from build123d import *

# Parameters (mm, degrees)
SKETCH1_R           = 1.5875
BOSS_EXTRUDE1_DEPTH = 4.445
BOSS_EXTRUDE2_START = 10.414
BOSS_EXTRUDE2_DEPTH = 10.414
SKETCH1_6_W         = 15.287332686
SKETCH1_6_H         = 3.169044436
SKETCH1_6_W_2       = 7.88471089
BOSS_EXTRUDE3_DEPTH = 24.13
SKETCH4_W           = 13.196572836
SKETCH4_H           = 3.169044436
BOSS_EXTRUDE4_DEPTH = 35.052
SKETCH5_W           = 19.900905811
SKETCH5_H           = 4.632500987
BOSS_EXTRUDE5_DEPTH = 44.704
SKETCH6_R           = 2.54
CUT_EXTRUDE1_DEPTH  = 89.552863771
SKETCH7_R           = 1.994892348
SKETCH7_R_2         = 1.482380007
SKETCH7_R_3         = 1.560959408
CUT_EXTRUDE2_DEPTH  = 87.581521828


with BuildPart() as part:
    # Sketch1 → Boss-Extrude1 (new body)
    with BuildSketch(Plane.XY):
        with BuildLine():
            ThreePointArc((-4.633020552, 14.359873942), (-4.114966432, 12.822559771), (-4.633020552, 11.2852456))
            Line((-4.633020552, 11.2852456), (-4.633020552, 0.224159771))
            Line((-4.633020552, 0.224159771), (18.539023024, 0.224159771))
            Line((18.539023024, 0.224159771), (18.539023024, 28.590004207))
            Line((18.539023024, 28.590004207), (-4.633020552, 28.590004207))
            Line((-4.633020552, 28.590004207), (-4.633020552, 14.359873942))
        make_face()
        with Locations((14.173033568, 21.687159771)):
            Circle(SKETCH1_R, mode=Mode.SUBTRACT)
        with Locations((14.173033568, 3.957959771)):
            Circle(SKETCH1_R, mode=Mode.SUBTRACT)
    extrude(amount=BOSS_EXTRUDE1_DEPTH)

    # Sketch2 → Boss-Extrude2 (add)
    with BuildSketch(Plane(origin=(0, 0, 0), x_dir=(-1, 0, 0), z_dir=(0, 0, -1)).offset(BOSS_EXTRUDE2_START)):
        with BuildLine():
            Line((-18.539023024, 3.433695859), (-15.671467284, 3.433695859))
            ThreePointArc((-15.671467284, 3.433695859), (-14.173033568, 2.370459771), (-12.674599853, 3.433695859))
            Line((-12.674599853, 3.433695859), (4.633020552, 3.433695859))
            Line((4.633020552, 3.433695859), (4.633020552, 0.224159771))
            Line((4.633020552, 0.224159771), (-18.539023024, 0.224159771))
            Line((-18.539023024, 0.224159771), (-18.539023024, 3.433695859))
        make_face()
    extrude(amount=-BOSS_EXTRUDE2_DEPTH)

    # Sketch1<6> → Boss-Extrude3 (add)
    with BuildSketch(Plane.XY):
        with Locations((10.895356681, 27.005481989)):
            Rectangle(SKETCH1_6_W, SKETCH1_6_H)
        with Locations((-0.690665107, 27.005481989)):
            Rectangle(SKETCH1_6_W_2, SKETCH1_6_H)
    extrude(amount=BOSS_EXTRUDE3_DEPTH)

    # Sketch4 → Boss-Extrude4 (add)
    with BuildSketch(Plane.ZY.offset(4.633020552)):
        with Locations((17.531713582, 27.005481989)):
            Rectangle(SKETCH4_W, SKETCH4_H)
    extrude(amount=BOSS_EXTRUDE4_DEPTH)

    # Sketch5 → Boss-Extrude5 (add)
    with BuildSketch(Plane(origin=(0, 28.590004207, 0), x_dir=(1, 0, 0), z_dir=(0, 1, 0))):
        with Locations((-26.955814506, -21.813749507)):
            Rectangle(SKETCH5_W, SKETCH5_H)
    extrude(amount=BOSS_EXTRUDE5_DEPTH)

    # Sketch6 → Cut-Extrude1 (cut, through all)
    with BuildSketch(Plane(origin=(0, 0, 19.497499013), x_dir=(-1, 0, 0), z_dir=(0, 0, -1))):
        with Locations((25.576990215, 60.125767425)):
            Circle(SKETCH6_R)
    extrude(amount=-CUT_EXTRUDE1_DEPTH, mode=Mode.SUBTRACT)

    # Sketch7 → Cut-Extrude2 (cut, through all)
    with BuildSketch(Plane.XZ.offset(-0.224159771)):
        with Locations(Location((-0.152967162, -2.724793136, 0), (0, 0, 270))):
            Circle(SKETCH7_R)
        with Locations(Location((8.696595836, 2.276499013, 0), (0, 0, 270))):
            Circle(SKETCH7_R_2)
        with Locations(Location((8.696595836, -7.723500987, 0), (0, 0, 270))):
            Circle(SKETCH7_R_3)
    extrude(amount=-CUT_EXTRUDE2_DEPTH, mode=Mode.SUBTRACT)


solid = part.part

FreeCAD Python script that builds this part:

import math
import FreeCAD as App
import Part
import Sketcher
Q = App.Units.Quantity

doc = App.newDocument("Part")
body = doc.addObject("PartDesign::Body", "Body")

# Sketch on XY plane
sketch1 = body.newObject("Sketcher::SketchObject", "Sketch")
sketch1.AttachmentSupport = (doc.getObject("XY_Plane"), [""])
sketch1.MapMode = "FlatFace"
sketch1.addGeometry(Part.ArcOfCircle(Part.Circle(App.Vector(-6.654966, 12.82256, 0), App.Vector(0, 0, 1), 2.54), math.radians(-37.246244), math.radians(37.246244)), False)
sketch1.addGeometry(Part.LineSegment(App.Vector(-4.633021, 11.285246, 0), App.Vector(-4.633021, 0.22416, 0)), False)
sketch1.addGeometry(Part.LineSegment(App.Vector(-4.633021, 0.22416, 0), App.Vector(18.539023, 0.22416, 0)), False)
sketch1.addGeometry(Part.LineSegment(App.Vector(18.539023, 0.22416, 0), App.Vector(18.539023, 28.590004, 0)), False)
sketch1.addGeometry(Part.LineSegment(App.Vector(18.539023, 28.590004, 0), App.Vector(-4.633021, 28.590004, 0)), False)
sketch1.addGeometry(Part.LineSegment(App.Vector(-4.633021, 28.590004, 0), App.Vector(-4.633021, 14.359874, 0)), False)
sketch1.addGeometry(Part.Circle(App.Vector(14.173034, 3.95796, 0), App.Vector(0, 0, 1), 1.5875), False)
sketch1.addGeometry(Part.Circle(App.Vector(14.173034, 21.68716, 0), App.Vector(0, 0, 1), 1.5875), False)
sketch1.addConstraint(Sketcher.Constraint("Coincident", 0, 1, 1, 1))
sketch1.addConstraint(Sketcher.Constraint("Coincident", 1, 2, 2, 1))
sketch1.addConstraint(Sketcher.Constraint("Coincident", 2, 2, 3, 1))
sketch1.addConstraint(Sketcher.Constraint("Coincident", 3, 2, 4, 1))
sketch1.addConstraint(Sketcher.Constraint("Coincident", 4, 2, 5, 1))
sketch1.addConstraint(Sketcher.Constraint("Coincident", 5, 2, 0, 2))
sketch1.addConstraint(Sketcher.Constraint("Vertical", 1))
sketch1.addConstraint(Sketcher.Constraint("Horizontal", 2))
sketch1.addConstraint(Sketcher.Constraint("Vertical", 3))
sketch1.addConstraint(Sketcher.Constraint("Horizontal", 4))
sketch1.addConstraint(Sketcher.Constraint("Vertical", 5))
sketch1.addConstraint(Sketcher.Constraint("Equal", 6, 7))
sketch1.addConstraint(Sketcher.Constraint("Vertical", 6, 3, 7, 3))
sketch1.addConstraint(Sketcher.Constraint("Vertical", 1, 2, 4, 2))
sketch1.addConstraint(Sketcher.Constraint("Radius", 0, Q("0.1 in")))
sketch1.addConstraint(Sketcher.Constraint("Diameter", 6, Q("0.125 in")))
sketch1.addConstraint(Sketcher.Constraint("DistanceX", 0, 3, 6, 3, Q("0.82 in")))
sketch1.addConstraint(Sketcher.Constraint("DistanceY", 6, 3, 0, 3, Q("0.349 in")))
sketch1.addConstraint(Sketcher.Constraint("DistanceY", 6, 3, 7, 3, Q("0.698 in")))
sketch1.addConstraint(Sketcher.Constraint("DistanceY", 1, 2, 0, 3, Q("0.496 in")))
sketch1.addConstraint(Sketcher.Constraint("DistanceY", 5, 2, 5, 1, 14.23013))
sketch1.addConstraint(Sketcher.Constraint("DistanceX", 2, 1, 2, 2, 23.172044))
sketch1.addConstraint(Sketcher.Constraint("DistanceY", 1, 2, 1, 1, 11.061086))
sketch1.addConstraint(Sketcher.Constraint("DistanceY", -1, 1, 0, 3, 12.82256))
sketch1.addConstraint(Sketcher.Constraint("DistanceX", 0, 1, -1, 1, 4.633021))
pad1 = body.newObject("PartDesign::Pad", "Pad")
pad1.Profile = sketch1
pad1.Length = Q("0.175 in")

# Sketch on XY plane
sketch2 = body.newObject("Sketcher::SketchObject", "Sketch001")
sketch2.AttachmentSupport = (doc.getObject("XY_Plane"), [""])
sketch2.MapMode = "FlatFace"
sketch2.AttachmentOffset = App.Placement(App.Vector(0, 0, -0.41 * 25.4), App.Rotation())
sketch2.addGeometry(Part.LineSegment(App.Vector(15.671467, 3.433696, 0), App.Vector(18.539023, 3.433696, 0)), False)
sketch2.addGeometry(Part.LineSegment(App.Vector(18.539023, 3.433696, 0), App.Vector(18.539023, 0.22416, 0)), False)
sketch2.addGeometry(Part.LineSegment(App.Vector(18.539023, 0.22416, 0), App.Vector(-4.633021, 0.22416, 0)), False)
sketch2.addGeometry(Part.LineSegment(App.Vector(-4.633021, 0.22416, 0), App.Vector(-4.633021, 3.433696, 0)), False)
sketch2.addGeometry(Part.LineSegment(App.Vector(-4.633021, 3.433696, 0), App.Vector(12.6746, 3.433696, 0)), False)
sketch2.addGeometry(Part.ArcOfCircle(Part.Circle(App.Vector(14.173034, 3.95796, 0), App.Vector(0, 0, 1), 1.5875), math.radians(-160.716354), math.radians(-19.283646)), False)
sketch2.addConstraint(Sketcher.Constraint("Coincident", 0, 2, 1, 1))
sketch2.addConstraint(Sketcher.Constraint("Coincident", 1, 2, 2, 1))
sketch2.addConstraint(Sketcher.Constraint("Coincident", 2, 2, 3, 1))
sketch2.addConstraint(Sketcher.Constraint("Coincident", 3, 2, 4, 1))
sketch2.addConstraint(Sketcher.Constraint("Coincident", 4, 2, 5, 1))
sketch2.addConstraint(Sketcher.Constraint("Coincident", 5, 2, 0, 1))
sketch2.addConstraint(Sketcher.Constraint("Horizontal", 0))
sketch2.addConstraint(Sketcher.Constraint("Vertical", 1))
sketch2.addConstraint(Sketcher.Constraint("Horizontal", 2))
sketch2.addConstraint(Sketcher.Constraint("Vertical", 3))
sketch2.addConstraint(Sketcher.Constraint("Horizontal", 4))
sketch2.addConstraint(Sketcher.Constraint("Horizontal", 0, 2, 3, 2))
sketch2.addConstraint(Sketcher.Constraint("Radius", 5, Q("0.0625 in")))
sketch2.addConstraint(Sketcher.Constraint("DistanceX", -1, 1, 4, 2, Q("0.499 in")))
sketch2.addConstraint(Sketcher.Constraint("DistanceY", 1, 2, 5, 3, Q("0.147 in")))
sketch2.addConstraint(Sketcher.Constraint("DistanceX", 4, 1, 4, 2, 17.30762))
sketch2.addConstraint(Sketcher.Constraint("DistanceX", 0, 1, 0, 2, 2.867556))
sketch2.addConstraint(Sketcher.Constraint("DistanceX", 2, 2, 2, 1, 23.172044))
sketch2.addConstraint(Sketcher.Constraint("DistanceY", -1, 1, 5, 3, 3.95796))
pad2 = body.newObject("PartDesign::Pad", "Pad001")
pad2.Profile = sketch2
pad2.Length = Q("0.41 in")

# Sketch on XY plane
sketch3 = body.newObject("Sketcher::SketchObject", "Sketch002")
sketch3.AttachmentSupport = (doc.getObject("XY_Plane"), [""])
sketch3.MapMode = "FlatFace"
sketch3.addGeometry(Part.LineSegment(App.Vector(18.539023, 25.42096, 0), App.Vector(18.539023, 28.590004, 0)), False)
sketch3.addGeometry(Part.LineSegment(App.Vector(18.539023, 28.590004, 0), App.Vector(-4.633021, 28.590004, 0)), False)
sketch3.addGeometry(Part.LineSegment(App.Vector(-4.633021, 28.590004, 0), App.Vector(-4.633021, 25.42096, 0)), False)
sketch3.addGeometry(Part.LineSegment(App.Vector(-4.633021, 25.42096, 0), App.Vector(18.539023, 25.42096, 0)), False)
sketch3.addConstraint(Sketcher.Constraint("Coincident", 0, 2, 1, 1))
sketch3.addConstraint(Sketcher.Constraint("Coincident", 1, 2, 2, 1))
sketch3.addConstraint(Sketcher.Constraint("Coincident", 2, 2, 3, 1))
sketch3.addConstraint(Sketcher.Constraint("Coincident", 3, 2, 0, 1))
sketch3.addConstraint(Sketcher.Constraint("Vertical", 0))
sketch3.addConstraint(Sketcher.Constraint("Horizontal", 1))
sketch3.addConstraint(Sketcher.Constraint("Vertical", 2))
sketch3.addConstraint(Sketcher.Constraint("Horizontal", 3))
sketch3.addConstraint(Sketcher.Constraint("DistanceX", 1, 2, 1, 1, 23.172044))
sketch3.addConstraint(Sketcher.Constraint("DistanceY", 0, 1, 0, 2, 3.169044))
sketch3.addConstraint(Sketcher.Constraint("DistanceX", 1, 2, -1, 1, 4.633021))
sketch3.addConstraint(Sketcher.Constraint("DistanceY", -1, 1, 2, 2, 25.42096))
pad3 = body.newObject("PartDesign::Pad", "Pad002")
pad3.Profile = sketch3
pad3.Length = Q("0.95 in")

# Sketch on YZ plane
sketch4 = body.newObject("Sketcher::SketchObject", "Sketch003")
sketch4.AttachmentSupport = (doc.getObject("YZ_Plane"), [""])
sketch4.MapMode = "FlatFace"
sketch4.AttachmentOffset = App.Placement(App.Vector(0, 0, -4.633021), App.Rotation())
sketch4.addGeometry(Part.LineSegment(App.Vector(28.590004, 10.933427, 0), App.Vector(25.42096, 10.933427, 0)), False)
sketch4.addGeometry(Part.LineSegment(App.Vector(25.42096, 10.933427, 0), App.Vector(25.42096, 24.13, 0)), False)
sketch4.addGeometry(Part.LineSegment(App.Vector(25.42096, 24.13, 0), App.Vector(28.590004, 24.13, 0)), False)
sketch4.addGeometry(Part.LineSegment(App.Vector(28.590004, 24.13, 0), App.Vector(28.590004, 10.933427, 0)), False)
sketch4.addConstraint(Sketcher.Constraint("Coincident", 0, 2, 1, 1))
sketch4.addConstraint(Sketcher.Constraint("Coincident", 1, 2, 2, 1))
sketch4.addConstraint(Sketcher.Constraint("Coincident", 2, 2, 3, 1))
sketch4.addConstraint(Sketcher.Constraint("Coincident", 3, 2, 0, 1))
sketch4.addConstraint(Sketcher.Constraint("Horizontal", 0))
sketch4.addConstraint(Sketcher.Constraint("Vertical", 1))
sketch4.addConstraint(Sketcher.Constraint("Horizontal", 2))
sketch4.addConstraint(Sketcher.Constraint("Vertical", 3))
sketch4.addConstraint(Sketcher.Constraint("DistanceY", -1, 1, 1, 2, Q("0.95 in")))
sketch4.addConstraint(Sketcher.Constraint("DistanceX", 0, 2, 0, 1, 3.169044))
sketch4.addConstraint(Sketcher.Constraint("DistanceY", 1, 1, 1, 2, 13.196573))
sketch4.addConstraint(Sketcher.Constraint("DistanceX", -1, 1, 0, 2, 25.42096))
pad4 = body.newObject("PartDesign::Pad", "Pad003")
pad4.Profile = sketch4
pad4.Length = Q("1.38 in")
pad4.Reversed = True

# Sketch on XZ plane
sketch5 = body.newObject("Sketcher::SketchObject", "Sketch004")
sketch5.AttachmentSupport = (doc.getObject("XZ_Plane"), [""])
sketch5.MapMode = "FlatFace"
sketch5.AttachmentOffset = App.Placement(App.Vector(0, 0, -28.590004), App.Rotation())
sketch5.addGeometry(Part.LineSegment(App.Vector(-36.906267, 19.497499, 0), App.Vector(-36.906267, 24.13, 0)), False)
sketch5.addGeometry(Part.LineSegment(App.Vector(-36.906267, 24.13, 0), App.Vector(-17.005362, 24.13, 0)), False)
sketch5.addGeometry(Part.LineSegment(App.Vector(-17.005362, 24.13, 0), App.Vector(-17.005362, 19.497499, 0)), False)
sketch5.addGeometry(Part.LineSegment(App.Vector(-17.005362, 19.497499, 0), App.Vector(-36.906267, 19.497499, 0)), False)
sketch5.addConstraint(Sketcher.Constraint("Coincident", 0, 2, 1, 1))
sketch5.addConstraint(Sketcher.Constraint("Coincident", 1, 2, 2, 1))
sketch5.addConstraint(Sketcher.Constraint("Coincident", 2, 2, 3, 1))
sketch5.addConstraint(Sketcher.Constraint("Coincident", 3, 2, 0, 1))
sketch5.addConstraint(Sketcher.Constraint("Vertical", 0))
sketch5.addConstraint(Sketcher.Constraint("Horizontal", 1))
sketch5.addConstraint(Sketcher.Constraint("Vertical", 2))
sketch5.addConstraint(Sketcher.Constraint("Horizontal", 3))
sketch5.addConstraint(Sketcher.Constraint("DistanceY", -1, 1, 0, 2, Q("0.95 in")))
sketch5.addConstraint(Sketcher.Constraint("DistanceY", 0, 1, 0, 2, 4.632501))
sketch5.addConstraint(Sketcher.Constraint("DistanceX", 1, 1, 1, 2, 19.900906))
sketch5.addConstraint(Sketcher.Constraint("DistanceX", 1, 2, -1, 1, 17.005362))
pad5 = body.newObject("PartDesign::Pad", "Pad004")
pad5.Profile = sketch5
pad5.Length = Q("1.76 in")
pad5.Reversed = True

# Sketch on XY plane
sketch6 = body.newObject("Sketcher::SketchObject", "Sketch005")
sketch6.AttachmentSupport = (doc.getObject("XY_Plane"), [""])
sketch6.MapMode = "FlatFace"
sketch6.AttachmentOffset = App.Placement(App.Vector(0, 0, 19.497499), App.Rotation())
sketch6.addGeometry(Part.Circle(App.Vector(-25.57699, 60.125767, 0), App.Vector(0, 0, 1), 2.54), False)
sketch6.addConstraint(Sketcher.Constraint("Diameter", 0, Q("0.2 in")))
sketch6.addConstraint(Sketcher.Constraint("DistanceX", 0, 3, -1, 1, 25.57699))
sketch6.addConstraint(Sketcher.Constraint("DistanceY", -1, 1, 0, 3, 60.125767))
pocket1 = body.newObject("PartDesign::Pocket", "Pocket")
pocket1.Profile = sketch6
pocket1.Type = "ThroughAll"
pocket1.Reversed = True

# Sketch on XZ plane
sketch7 = body.newObject("Sketcher::SketchObject", "Sketch006")
sketch7.AttachmentSupport = (doc.getObject("XZ_Plane"), [""])
sketch7.MapMode = "FlatFace"
sketch7.AttachmentOffset = App.Placement(App.Vector(0, 0, -0.22416), App.Rotation())
sketch7.addGeometry(Part.Circle(App.Vector(-0.152967, -2.724793, 0), App.Vector(0, 0, 1), 1.994892), False)
sketch7.addGeometry(Part.Circle(App.Vector(8.696596, 2.276499, 0), App.Vector(0, 0, 1), 1.48238), False)
sketch7.addGeometry(Part.Circle(App.Vector(8.696596, -7.723501, 0), App.Vector(0, 0, 1), 1.560959), False)
sketch7.addConstraint(Sketcher.Constraint("Vertical", 1, 3, 2, 3))
sketch7.addConstraint(Sketcher.Constraint("Diameter", 1, 2.96476))
sketch7.addConstraint(Sketcher.Constraint("Diameter", 2, 3.121919))
sketch7.addConstraint(Sketcher.Constraint("Diameter", 0, 3.989785))
sketch7.addConstraint(Sketcher.Constraint("DistanceY", -1, 1, 1, 3, 2.276499))
sketch7.addConstraint(Sketcher.Constraint("DistanceY", 2, 3, -1, 1, 7.723501))
sketch7.addConstraint(Sketcher.Constraint("DistanceX", 0, 3, -1, 1, 0.152967))
sketch7.addConstraint(Sketcher.Constraint("DistanceY", 0, 3, -1, 1, 2.724793))
sketch7.addConstraint(Sketcher.Constraint("DistanceX", -1, 1, 1, 3, 8.696596))
pocket2 = body.newObject("PartDesign::Pocket", "Pocket001")
pocket2.Profile = sketch7
pocket2.Type = "ThroughAll"

doc.recompute()
